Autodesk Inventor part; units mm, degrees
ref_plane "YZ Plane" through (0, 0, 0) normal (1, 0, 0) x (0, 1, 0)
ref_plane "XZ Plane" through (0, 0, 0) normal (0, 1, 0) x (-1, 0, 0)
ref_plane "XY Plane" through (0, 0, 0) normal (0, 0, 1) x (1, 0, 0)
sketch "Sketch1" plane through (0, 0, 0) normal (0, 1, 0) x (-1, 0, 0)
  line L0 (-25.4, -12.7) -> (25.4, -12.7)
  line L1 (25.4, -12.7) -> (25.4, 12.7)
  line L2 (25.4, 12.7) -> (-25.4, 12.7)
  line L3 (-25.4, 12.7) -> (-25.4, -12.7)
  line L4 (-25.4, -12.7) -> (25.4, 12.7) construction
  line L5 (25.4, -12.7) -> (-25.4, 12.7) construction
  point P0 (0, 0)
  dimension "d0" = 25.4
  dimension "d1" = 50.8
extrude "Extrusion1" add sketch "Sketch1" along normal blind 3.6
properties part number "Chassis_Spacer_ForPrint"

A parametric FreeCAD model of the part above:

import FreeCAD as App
import Part
import Sketcher

V = App.Vector
Q = App.Units.Quantity


def add_polygon(sketch, points):
    """Adds a closed chain of lines whose ends are joined by coincident constraints."""
    first, n = sketch.GeometryCount, len(points)
    for a, b in zip(points, points[1:] + points[:1]):
        sketch.addGeometry(Part.LineSegment(App.Vector(*a, 0), App.Vector(*b, 0)), False)
    for i in range(n):
        sketch.addConstraint(Sketcher.Constraint("Coincident", first + i, 2, first + (i + 1) % n, 1))

doc = App.newDocument("Part")
body = doc.addObject("PartDesign::Body", "Body")

# Sketch on XZ plane
sketch1 = doc.addObject("Sketcher::SketchObject", "Sketch")
body.addObject(sketch1)
sketch1.AttachmentSupport = (doc.XZ_Plane, [""])
sketch1.MapMode = "FlatFace"
add_polygon(sketch1, [(25, 13), (25, -13), (-25, -13), (-25, 13)])  # lines 0-3
sketch1.addConstraint([
    Sketcher.Constraint("Vertical", 0),
    Sketcher.Constraint("Horizontal", 1),
    Sketcher.Constraint("Vertical", 2),
    Sketcher.Constraint("Horizontal", 3),
    Sketcher.Constraint("Symmetric", 0, 2, 2, 2, -1, 1),
    Sketcher.Constraint("DistanceX", 1, 2, 1, 1, Q("2 in")),
    Sketcher.Constraint("DistanceY", 0, 2, 0, 1, Q("1 in")),
])
pad1 = doc.addObject("PartDesign::Pad", "Pad")
body.addObject(pad1)
pad1.Profile = sketch1
pad1.Length = 3.6
pad1.Reversed = True

doc.recompute()
